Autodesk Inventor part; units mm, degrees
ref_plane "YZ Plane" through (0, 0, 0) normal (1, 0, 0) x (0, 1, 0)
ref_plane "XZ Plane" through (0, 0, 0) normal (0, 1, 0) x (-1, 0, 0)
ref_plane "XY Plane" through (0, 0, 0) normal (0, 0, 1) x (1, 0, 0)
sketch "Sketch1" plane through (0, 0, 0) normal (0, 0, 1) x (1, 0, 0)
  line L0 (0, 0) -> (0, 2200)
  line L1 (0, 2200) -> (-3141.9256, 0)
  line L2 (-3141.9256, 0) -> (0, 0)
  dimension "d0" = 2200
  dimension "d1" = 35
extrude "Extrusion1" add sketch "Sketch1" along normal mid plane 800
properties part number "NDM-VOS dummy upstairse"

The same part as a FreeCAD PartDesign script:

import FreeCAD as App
import Part
import Sketcher
Q = App.Units.Quantity

doc = App.newDocument("Part")
body = doc.addObject("PartDesign::Body", "Body")

sketch1 = body.newObject("Sketcher::SketchObject", "Sketch")
sketch1.AttachmentSupport = (doc.getObject("XY_Plane"), [""])
sketch1.MapMode = "FlatFace"
sketch1.addGeometry([
    Part.LineSegment(App.Vector(-3142, 0, 0), App.Vector(0, 0, 0)),
    Part.LineSegment(App.Vector(0, 0, 0), App.Vector(0, 2200, 0)),
    Part.LineSegment(App.Vector(0, 2200, 0), App.Vector(-3142, 0, 0)),
], False)
sketch1.addConstraint([
    Sketcher.Constraint("Coincident", 0, 2, 1, 1),
    Sketcher.Constraint("Coincident", 1, 2, 2, 1),
    Sketcher.Constraint("Coincident", 2, 2, 0, 1),
    Sketcher.Constraint("Horizontal", 0),
    Sketcher.Constraint("Vertical", 1),
    Sketcher.Constraint("Coincident", 0, 2, -1, 1),
    Sketcher.Constraint("DistanceY", 1, 1, 1, 2, 2200.0),
    Sketcher.Constraint("Angle", 2, Q("-145 deg")),
])
pad1 = body.newObject("PartDesign::Pad", "Pad")
pad1.Profile = sketch1
pad1.Length = 800
pad1.Midplane = True

doc.recompute()
